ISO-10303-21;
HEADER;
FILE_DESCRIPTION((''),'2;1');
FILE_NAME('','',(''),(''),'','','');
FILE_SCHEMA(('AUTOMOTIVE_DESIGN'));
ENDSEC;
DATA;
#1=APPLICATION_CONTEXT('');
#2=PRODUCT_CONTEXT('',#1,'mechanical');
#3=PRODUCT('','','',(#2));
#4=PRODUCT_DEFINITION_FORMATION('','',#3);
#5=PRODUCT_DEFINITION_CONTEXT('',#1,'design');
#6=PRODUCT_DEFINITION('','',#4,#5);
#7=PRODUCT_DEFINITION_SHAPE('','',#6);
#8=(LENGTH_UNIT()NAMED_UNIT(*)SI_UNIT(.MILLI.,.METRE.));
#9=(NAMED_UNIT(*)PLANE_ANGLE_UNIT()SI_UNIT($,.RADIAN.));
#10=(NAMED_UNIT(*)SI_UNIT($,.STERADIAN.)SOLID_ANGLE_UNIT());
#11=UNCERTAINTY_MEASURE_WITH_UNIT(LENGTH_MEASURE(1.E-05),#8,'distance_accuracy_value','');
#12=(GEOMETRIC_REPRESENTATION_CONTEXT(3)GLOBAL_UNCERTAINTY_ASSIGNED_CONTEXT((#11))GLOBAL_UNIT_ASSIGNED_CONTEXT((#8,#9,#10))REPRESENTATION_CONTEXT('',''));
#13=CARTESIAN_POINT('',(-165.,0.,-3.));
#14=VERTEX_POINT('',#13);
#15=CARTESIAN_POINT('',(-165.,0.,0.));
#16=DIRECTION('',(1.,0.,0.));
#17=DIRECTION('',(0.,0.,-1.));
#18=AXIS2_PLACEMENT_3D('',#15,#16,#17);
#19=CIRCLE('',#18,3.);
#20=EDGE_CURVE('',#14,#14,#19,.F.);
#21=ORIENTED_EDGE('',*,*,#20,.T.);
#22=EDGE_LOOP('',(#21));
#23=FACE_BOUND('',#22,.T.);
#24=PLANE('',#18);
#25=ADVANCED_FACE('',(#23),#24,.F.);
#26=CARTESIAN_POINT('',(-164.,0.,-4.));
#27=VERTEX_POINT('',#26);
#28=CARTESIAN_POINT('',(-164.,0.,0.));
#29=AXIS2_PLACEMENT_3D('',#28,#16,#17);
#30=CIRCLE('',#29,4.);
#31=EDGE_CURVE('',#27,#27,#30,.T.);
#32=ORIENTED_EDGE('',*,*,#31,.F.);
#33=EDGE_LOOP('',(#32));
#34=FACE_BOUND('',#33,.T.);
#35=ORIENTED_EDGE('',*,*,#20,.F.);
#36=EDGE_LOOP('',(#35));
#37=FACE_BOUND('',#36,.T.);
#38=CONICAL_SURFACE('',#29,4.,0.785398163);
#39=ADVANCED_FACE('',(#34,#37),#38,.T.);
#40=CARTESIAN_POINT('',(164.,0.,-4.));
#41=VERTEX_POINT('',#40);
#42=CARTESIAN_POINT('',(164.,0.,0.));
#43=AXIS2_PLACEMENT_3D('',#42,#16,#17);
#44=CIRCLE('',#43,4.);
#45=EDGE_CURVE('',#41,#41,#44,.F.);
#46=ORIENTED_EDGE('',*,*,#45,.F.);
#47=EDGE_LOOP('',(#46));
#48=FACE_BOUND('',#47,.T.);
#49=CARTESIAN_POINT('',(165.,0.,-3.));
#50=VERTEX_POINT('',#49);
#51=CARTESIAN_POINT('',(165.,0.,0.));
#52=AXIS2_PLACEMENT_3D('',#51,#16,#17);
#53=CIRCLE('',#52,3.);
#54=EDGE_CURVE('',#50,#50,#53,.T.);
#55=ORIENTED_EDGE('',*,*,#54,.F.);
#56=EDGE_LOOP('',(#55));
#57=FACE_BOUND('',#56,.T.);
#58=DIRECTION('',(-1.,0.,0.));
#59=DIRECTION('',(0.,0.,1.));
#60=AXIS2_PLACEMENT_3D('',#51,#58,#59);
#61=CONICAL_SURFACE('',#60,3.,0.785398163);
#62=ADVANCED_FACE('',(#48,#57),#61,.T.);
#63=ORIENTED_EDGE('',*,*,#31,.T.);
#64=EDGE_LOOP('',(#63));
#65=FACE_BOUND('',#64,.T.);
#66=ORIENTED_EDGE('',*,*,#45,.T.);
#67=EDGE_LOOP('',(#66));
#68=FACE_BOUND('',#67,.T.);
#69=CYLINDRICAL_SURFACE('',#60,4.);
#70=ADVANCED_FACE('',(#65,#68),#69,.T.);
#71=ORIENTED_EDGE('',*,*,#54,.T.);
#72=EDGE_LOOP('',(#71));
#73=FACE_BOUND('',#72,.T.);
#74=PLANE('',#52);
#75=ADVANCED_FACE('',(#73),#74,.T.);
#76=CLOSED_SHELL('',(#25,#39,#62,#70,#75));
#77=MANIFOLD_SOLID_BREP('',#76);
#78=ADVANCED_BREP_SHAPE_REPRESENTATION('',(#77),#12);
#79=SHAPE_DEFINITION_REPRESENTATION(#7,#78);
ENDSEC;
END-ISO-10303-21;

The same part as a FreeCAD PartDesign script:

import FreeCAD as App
import Part
import Sketcher

V = App.Vector


def edges_at(feature, points):
    """Names of the edges that pass closest to the given points."""
    edges = feature.Shape.Edges
    near = lambda p: min(range(len(edges)), key=lambda i: edges[i].distToShape(Part.Vertex(*p))[0])
    return sorted({f"Edge{near(p) + 1}" for p in points})

doc = App.newDocument("Part")
body = doc.addObject("PartDesign::Body", "Body")

# Sketch on YZ plane
sketch1 = doc.addObject("Sketcher::SketchObject", "Sketch")
body.addObject(sketch1)
sketch1.AttachmentSupport = (doc.YZ_Plane, [""])
sketch1.MapMode = "FlatFace"
sketch1.addGeometry(Part.Circle(V(0, 0, 0), V(0, 0, 1), 4), False)
sketch1.addConstraint(Sketcher.Constraint("Coincident", 0, 3, -1, 1))
sketch1.addConstraint(Sketcher.Constraint("Diameter", 0, 8.0))
pad1 = doc.addObject("PartDesign::Pad", "Pad")
body.addObject(pad1)
pad1.Profile = sketch1
pad1.Length = 330
pad1.Midplane = True
doc.recompute()

chamfer = doc.addObject("PartDesign::Chamfer", "Chamfer")
body.addObject(chamfer)
chamfer.Base = (pad1, edges_at(pad1, [(-165, 0, 4), (165, 0, 4)]))
chamfer.Size = 1

doc.recompute()
